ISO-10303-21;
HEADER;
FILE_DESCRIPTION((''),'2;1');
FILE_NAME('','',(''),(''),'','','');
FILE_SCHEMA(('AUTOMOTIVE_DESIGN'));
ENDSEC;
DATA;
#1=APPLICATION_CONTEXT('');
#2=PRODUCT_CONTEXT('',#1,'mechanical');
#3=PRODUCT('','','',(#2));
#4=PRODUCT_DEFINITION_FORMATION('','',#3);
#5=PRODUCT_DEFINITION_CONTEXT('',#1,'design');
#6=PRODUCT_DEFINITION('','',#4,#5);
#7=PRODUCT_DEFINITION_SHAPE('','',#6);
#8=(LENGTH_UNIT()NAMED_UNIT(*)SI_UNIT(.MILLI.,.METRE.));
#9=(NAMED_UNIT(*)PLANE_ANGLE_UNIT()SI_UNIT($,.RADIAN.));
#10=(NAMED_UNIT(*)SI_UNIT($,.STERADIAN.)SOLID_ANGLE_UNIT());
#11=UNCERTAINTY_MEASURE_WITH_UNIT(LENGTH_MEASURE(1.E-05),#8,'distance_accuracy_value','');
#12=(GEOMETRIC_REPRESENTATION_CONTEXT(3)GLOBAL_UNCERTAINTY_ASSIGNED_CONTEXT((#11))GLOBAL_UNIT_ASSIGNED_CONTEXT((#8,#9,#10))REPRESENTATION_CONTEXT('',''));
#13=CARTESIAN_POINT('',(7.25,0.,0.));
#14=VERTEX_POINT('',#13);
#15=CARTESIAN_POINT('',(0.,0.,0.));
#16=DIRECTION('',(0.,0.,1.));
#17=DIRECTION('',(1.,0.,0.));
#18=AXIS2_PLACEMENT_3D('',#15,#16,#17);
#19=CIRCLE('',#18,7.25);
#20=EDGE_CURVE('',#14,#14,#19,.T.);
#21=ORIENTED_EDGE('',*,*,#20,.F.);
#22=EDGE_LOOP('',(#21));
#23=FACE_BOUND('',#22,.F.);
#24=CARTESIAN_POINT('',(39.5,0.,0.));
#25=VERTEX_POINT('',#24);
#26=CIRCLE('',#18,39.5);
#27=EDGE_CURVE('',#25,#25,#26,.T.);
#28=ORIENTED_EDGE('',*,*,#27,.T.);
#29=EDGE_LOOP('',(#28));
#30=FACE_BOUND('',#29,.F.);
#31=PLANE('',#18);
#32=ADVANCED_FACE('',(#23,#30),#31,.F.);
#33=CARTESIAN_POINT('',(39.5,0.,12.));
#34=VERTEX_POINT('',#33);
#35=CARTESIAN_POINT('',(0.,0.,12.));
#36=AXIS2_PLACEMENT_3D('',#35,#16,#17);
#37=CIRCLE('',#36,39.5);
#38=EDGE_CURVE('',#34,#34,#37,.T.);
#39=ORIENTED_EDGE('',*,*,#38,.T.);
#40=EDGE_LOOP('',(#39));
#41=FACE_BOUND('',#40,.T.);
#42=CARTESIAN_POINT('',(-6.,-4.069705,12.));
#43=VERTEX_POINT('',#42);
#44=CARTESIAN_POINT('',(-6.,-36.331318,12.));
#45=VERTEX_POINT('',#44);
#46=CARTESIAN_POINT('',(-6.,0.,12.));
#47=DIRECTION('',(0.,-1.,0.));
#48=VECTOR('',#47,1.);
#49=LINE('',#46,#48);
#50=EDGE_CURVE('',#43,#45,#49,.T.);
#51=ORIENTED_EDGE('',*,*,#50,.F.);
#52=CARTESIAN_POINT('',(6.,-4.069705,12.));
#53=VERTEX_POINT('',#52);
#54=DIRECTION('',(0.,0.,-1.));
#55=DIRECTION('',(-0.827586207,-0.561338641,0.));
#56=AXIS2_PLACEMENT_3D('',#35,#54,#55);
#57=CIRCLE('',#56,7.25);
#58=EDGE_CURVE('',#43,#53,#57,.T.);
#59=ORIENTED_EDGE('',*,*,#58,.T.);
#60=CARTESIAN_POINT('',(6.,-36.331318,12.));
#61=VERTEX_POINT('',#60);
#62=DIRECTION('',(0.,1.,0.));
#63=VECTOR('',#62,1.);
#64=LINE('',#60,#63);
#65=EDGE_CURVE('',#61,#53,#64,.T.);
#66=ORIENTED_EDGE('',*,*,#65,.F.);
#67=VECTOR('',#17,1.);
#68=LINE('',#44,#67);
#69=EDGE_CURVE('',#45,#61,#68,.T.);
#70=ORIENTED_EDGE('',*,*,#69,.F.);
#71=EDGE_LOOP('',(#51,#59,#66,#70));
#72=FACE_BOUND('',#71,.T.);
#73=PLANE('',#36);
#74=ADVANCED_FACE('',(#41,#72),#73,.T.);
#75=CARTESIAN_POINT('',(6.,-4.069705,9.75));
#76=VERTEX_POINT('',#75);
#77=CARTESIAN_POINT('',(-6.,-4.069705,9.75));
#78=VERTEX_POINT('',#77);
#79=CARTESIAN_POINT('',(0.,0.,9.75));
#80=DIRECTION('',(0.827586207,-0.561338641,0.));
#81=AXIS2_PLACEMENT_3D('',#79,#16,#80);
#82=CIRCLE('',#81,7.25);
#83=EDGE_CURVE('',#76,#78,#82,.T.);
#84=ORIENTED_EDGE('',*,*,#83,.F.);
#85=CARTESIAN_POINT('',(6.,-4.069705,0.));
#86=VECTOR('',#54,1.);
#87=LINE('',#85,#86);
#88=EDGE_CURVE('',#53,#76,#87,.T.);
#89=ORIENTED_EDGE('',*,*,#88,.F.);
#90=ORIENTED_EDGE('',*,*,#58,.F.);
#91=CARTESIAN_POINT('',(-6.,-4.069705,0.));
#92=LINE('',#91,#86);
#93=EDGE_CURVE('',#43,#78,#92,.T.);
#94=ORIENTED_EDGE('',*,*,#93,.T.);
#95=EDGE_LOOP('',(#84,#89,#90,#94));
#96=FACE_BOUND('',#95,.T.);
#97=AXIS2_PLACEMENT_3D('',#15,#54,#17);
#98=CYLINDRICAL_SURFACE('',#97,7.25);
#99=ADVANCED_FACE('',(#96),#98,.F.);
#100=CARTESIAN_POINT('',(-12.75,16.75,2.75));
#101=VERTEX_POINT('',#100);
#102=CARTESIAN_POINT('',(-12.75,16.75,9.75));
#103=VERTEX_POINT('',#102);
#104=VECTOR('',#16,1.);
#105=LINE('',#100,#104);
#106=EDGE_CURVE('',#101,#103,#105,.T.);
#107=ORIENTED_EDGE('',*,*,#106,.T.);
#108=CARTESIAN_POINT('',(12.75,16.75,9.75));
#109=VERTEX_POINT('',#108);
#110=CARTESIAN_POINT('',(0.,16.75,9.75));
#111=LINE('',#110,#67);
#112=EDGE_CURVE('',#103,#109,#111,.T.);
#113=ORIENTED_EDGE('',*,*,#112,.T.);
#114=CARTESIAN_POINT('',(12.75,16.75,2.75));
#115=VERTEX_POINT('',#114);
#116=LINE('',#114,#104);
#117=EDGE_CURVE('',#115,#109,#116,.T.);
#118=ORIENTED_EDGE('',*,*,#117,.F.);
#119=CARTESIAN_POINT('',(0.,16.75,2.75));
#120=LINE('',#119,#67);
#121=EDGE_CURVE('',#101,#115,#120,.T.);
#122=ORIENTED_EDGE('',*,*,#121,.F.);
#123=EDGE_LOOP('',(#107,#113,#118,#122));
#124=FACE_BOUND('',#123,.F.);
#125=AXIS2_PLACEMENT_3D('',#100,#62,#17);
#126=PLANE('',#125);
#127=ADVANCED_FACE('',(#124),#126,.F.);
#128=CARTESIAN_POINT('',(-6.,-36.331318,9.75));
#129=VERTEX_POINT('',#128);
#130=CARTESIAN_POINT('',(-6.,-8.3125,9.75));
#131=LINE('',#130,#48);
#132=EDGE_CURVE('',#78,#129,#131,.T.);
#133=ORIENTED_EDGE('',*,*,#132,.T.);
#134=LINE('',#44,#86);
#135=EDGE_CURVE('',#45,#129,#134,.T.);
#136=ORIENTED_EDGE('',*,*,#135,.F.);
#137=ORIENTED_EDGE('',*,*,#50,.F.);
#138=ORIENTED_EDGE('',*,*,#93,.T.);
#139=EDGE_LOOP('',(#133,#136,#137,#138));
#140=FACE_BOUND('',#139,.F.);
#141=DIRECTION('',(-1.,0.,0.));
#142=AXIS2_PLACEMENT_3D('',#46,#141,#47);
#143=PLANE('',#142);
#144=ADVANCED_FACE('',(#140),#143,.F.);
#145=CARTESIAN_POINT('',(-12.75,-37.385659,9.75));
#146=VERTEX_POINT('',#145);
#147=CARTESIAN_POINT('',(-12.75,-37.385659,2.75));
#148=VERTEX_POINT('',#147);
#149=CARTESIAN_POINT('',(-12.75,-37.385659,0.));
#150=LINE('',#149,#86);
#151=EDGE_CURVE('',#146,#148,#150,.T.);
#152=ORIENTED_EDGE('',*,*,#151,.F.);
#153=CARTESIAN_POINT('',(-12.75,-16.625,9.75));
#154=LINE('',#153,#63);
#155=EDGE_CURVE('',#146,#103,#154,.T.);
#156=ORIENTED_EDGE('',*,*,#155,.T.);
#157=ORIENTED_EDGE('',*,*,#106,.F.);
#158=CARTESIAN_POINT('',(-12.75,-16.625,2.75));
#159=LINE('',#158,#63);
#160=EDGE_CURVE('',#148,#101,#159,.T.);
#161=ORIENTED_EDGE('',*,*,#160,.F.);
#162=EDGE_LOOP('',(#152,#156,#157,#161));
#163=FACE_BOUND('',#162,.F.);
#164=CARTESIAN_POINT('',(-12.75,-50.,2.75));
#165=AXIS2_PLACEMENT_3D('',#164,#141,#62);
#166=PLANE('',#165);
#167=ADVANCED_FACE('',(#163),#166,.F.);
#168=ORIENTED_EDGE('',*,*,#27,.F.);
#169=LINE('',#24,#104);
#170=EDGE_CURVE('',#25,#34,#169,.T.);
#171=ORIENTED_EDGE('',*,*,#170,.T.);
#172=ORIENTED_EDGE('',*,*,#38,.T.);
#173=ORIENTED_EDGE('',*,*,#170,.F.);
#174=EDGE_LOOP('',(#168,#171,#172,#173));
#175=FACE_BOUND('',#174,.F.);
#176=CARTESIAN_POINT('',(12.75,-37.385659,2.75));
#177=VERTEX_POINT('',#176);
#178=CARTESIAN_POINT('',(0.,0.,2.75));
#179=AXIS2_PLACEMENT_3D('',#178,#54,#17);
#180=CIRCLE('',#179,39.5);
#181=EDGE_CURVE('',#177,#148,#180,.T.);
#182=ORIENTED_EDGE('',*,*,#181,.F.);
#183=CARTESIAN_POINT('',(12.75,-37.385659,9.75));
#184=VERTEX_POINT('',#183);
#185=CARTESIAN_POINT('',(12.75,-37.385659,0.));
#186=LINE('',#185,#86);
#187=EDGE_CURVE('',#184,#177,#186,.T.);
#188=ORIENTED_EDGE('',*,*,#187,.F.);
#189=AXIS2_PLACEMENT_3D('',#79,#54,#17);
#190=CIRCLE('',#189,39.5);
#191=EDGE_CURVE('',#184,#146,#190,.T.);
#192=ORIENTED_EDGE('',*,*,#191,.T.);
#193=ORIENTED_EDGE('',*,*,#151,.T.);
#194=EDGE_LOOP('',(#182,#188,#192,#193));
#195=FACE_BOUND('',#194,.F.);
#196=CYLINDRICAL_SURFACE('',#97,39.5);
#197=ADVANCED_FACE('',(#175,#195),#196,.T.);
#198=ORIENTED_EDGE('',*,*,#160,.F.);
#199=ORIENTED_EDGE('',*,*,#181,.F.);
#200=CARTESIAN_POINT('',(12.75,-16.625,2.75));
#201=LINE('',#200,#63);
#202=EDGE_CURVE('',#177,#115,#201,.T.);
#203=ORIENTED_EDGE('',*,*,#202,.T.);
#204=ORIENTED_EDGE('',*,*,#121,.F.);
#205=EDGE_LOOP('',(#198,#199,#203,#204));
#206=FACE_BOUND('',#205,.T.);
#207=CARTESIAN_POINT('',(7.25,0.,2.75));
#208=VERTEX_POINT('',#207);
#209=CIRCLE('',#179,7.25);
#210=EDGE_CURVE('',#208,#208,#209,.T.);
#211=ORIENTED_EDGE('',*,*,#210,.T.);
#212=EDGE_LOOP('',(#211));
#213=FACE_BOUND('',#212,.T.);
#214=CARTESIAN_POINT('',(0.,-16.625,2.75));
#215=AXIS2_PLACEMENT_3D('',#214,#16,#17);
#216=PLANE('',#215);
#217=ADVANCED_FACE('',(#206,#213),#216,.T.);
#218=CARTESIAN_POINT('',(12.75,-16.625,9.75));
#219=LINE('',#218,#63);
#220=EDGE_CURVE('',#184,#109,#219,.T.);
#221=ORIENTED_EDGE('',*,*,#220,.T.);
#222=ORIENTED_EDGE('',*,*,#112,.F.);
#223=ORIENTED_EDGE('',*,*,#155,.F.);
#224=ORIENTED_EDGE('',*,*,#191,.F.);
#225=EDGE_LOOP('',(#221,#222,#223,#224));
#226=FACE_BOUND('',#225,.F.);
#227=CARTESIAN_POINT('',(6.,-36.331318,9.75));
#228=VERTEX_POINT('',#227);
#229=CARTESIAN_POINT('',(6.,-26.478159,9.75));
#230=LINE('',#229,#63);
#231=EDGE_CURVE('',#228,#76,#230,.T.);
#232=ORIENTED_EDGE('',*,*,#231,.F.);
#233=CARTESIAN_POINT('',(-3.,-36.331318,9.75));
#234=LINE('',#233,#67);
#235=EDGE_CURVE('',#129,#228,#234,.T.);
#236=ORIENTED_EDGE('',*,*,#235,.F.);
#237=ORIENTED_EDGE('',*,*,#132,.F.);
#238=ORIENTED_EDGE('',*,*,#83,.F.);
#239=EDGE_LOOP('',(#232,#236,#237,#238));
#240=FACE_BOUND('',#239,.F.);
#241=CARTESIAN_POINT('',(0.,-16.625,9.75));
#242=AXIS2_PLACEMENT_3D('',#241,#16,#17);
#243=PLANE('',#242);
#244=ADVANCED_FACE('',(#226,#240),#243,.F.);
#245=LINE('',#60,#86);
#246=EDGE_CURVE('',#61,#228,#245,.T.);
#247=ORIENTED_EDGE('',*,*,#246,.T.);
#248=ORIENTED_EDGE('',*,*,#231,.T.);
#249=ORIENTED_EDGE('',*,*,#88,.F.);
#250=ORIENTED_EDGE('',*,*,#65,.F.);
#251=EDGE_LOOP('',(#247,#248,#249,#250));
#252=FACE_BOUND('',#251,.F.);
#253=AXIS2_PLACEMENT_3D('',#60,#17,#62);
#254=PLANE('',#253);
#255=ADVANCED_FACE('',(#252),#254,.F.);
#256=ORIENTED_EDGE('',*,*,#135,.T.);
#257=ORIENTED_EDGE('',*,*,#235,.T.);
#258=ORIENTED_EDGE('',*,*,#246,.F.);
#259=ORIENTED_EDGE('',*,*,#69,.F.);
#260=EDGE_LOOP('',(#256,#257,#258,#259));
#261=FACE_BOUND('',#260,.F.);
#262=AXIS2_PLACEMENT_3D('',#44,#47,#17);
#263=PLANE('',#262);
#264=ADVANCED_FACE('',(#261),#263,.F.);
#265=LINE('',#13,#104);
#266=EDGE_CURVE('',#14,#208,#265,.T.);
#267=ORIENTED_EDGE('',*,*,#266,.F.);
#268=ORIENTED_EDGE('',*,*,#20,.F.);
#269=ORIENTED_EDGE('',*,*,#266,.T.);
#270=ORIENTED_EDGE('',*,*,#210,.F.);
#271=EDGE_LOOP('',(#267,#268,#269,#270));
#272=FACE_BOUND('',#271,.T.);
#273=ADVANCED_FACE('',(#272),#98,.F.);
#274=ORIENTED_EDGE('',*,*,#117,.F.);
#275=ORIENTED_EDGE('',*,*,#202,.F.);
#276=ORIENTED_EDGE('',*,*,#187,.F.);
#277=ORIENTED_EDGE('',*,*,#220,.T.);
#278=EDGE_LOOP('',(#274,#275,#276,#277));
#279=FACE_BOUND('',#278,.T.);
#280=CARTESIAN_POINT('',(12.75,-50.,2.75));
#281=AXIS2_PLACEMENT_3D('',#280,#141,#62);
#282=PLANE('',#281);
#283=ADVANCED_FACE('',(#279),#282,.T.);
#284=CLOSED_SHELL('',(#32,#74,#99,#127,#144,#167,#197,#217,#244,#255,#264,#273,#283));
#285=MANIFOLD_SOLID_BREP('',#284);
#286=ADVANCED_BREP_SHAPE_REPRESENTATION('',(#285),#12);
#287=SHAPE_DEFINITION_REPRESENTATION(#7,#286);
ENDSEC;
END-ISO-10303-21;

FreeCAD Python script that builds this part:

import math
import FreeCAD as App
import Part
import Sketcher

doc = App.newDocument("Part")
params = doc.addObject("Spreadsheet::Sheet", "Params")
for row, (alias, value) in enumerate([
    ("sketch1_diameter", "79 mm"),
    ("sketch1_diameter2", "14.5 mm"),
    ("pad1_length", "12 mm"),
    ("sketch2_width", "25.5 mm"),
    ("sketch2_height", "66.75 mm"),
    ("pocket1_length", "7 mm"),
    ("sketch3_radius", "6 mm"),
    ("pocket2_length", "5 mm"),
], start=1):
    params.set(f"A{row}", alias)
    params.set(f"B{row}", "=" + value)
    params.setAlias(f"B{row}", alias)

body = doc.addObject("PartDesign::Body", "Body")

sketch1 = doc.addObject("Sketcher::SketchObject", "Sketch")
body.addObject(sketch1)
sketch1.AttachmentSupport = (doc.XY_Plane, [""])
sketch1.MapMode = "FlatFace"
sketch1.addGeometry([
    Part.Circle(App.Vector(0, 0, 0), App.Vector(0, 0, 1), 40),
    Part.Circle(App.Vector(0, 0, 0), App.Vector(0, 0, 1), 7),
], False)
sketch1.addConstraint([
    Sketcher.Constraint("Coincident", 0, 3, -1, 1),
    Sketcher.Constraint("Coincident", 1, 3, -1, 1),
    Sketcher.Constraint("Diameter", 0, 79.0),
    Sketcher.Constraint("Diameter", 1, 14.5),
])
sketch1.setExpression("Constraints[2]", "Params.sketch1_diameter")
sketch1.setExpression("Constraints[3]", "Params.sketch1_diameter2")
pad1 = doc.addObject("PartDesign::Pad", "Pad")
body.addObject(pad1)
pad1.Profile = sketch1
pad1.setExpression("Length", "Params.pad1_length")

sketch2 = doc.addObject("Sketcher::SketchObject", "Sketch001")
body.addObject(sketch2)
sketch2.AttachmentSupport = (doc.XY_Plane, [""])
sketch2.MapMode = "FlatFace"
sketch2.AttachmentOffset = App.Placement(App.Vector(0, 0, 2.75), App.Rotation())
sketch2.addGeometry([
    Part.LineSegment(App.Vector(-13, 17, 0), App.Vector(-13, -50, 0)),
    Part.LineSegment(App.Vector(-13, -50, 0), App.Vector(13, -50, 0)),
    Part.LineSegment(App.Vector(13, -50, 0), App.Vector(13, 17, 0)),
    Part.LineSegment(App.Vector(13, 17, 0), App.Vector(-13, 17, 0)),
], False)
sketch2.addConstraint([
    Sketcher.Constraint("Coincident", 0, 2, 1, 1),
    Sketcher.Constraint("Coincident", 1, 2, 2, 1),
    Sketcher.Constraint("Coincident", 2, 2, 3, 1),
    Sketcher.Constraint("Coincident", 3, 2, 0, 1),
    Sketcher.Constraint("Vertical", 0),
    Sketcher.Constraint("Horizontal", 1),
    Sketcher.Constraint("Vertical", 2),
    Sketcher.Constraint("Horizontal", 3),
    Sketcher.Constraint("DistanceX", 1, 1, 1, 2, 25.5),
    Sketcher.Constraint("DistanceY", 0, 2, -1, 1, 50.0),
    Sketcher.Constraint("DistanceY", 0, 2, 0, 1, 66.75),
    Sketcher.Constraint("DistanceX", 0, 2, -1, 1, 12.75),
])
sketch2.setExpression("Constraints[8]", "Params.sketch2_width")
sketch2.setExpression("Constraints[10]", "Params.sketch2_height")
pocket1 = doc.addObject("PartDesign::Pocket", "Pocket")
body.addObject(pocket1)
pocket1.Profile = sketch2
pocket1.setExpression("Length", "Params.pocket1_length")
pocket1.Reversed = True

sketch3 = doc.addObject("Sketcher::SketchObject", "Sketch002")
body.addObject(sketch3)
sketch3.AttachmentSupport = (doc.XY_Plane, [""])
sketch3.MapMode = "FlatFace"
sketch3.AttachmentOffset = App.Placement(App.Vector(0, 0, 12), App.Rotation())
sketch3.addGeometry([
    Part.LineSegment(App.Vector(6, -36, 0), App.Vector(6, 0, 0)),
    Part.ArcOfCircle(Part.Circle(App.Vector(0, 0, 0), App.Vector(0, 0, 1), 6), math.radians(0), math.radians(180)),
    Part.LineSegment(App.Vector(-6, 0, 0), App.Vector(-6, -36, 0)),
    Part.LineSegment(App.Vector(-6, -36, 0), App.Vector(6, -36, 0)),
], False)
sketch3.addConstraint([
    Sketcher.Constraint("Tangent", 0, 2, 1, 1),
    Sketcher.Constraint("Tangent", 1, 2, 2, 1),
    Sketcher.Constraint("Coincident", 2, 2, 3, 1),
    Sketcher.Constraint("Coincident", 3, 2, 0, 1),
    Sketcher.Constraint("Vertical", 0),
    Sketcher.Constraint("Vertical", 2),
    Sketcher.Constraint("Horizontal", 3),
    Sketcher.Constraint("Coincident", 1, 3, -1, 1),
    Sketcher.Constraint("Radius", 1, 6.0),
    Sketcher.Constraint("DistanceY", 0, 1, 0, 2, 36.331318),
])
sketch3.setExpression("Constraints[8]", "Params.sketch3_radius")
pocket2 = doc.addObject("PartDesign::Pocket", "Pocket001")
body.addObject(pocket2)
pocket2.Profile = sketch3
pocket2.setExpression("Length", "Params.pocket2_length")

doc.recompute()
